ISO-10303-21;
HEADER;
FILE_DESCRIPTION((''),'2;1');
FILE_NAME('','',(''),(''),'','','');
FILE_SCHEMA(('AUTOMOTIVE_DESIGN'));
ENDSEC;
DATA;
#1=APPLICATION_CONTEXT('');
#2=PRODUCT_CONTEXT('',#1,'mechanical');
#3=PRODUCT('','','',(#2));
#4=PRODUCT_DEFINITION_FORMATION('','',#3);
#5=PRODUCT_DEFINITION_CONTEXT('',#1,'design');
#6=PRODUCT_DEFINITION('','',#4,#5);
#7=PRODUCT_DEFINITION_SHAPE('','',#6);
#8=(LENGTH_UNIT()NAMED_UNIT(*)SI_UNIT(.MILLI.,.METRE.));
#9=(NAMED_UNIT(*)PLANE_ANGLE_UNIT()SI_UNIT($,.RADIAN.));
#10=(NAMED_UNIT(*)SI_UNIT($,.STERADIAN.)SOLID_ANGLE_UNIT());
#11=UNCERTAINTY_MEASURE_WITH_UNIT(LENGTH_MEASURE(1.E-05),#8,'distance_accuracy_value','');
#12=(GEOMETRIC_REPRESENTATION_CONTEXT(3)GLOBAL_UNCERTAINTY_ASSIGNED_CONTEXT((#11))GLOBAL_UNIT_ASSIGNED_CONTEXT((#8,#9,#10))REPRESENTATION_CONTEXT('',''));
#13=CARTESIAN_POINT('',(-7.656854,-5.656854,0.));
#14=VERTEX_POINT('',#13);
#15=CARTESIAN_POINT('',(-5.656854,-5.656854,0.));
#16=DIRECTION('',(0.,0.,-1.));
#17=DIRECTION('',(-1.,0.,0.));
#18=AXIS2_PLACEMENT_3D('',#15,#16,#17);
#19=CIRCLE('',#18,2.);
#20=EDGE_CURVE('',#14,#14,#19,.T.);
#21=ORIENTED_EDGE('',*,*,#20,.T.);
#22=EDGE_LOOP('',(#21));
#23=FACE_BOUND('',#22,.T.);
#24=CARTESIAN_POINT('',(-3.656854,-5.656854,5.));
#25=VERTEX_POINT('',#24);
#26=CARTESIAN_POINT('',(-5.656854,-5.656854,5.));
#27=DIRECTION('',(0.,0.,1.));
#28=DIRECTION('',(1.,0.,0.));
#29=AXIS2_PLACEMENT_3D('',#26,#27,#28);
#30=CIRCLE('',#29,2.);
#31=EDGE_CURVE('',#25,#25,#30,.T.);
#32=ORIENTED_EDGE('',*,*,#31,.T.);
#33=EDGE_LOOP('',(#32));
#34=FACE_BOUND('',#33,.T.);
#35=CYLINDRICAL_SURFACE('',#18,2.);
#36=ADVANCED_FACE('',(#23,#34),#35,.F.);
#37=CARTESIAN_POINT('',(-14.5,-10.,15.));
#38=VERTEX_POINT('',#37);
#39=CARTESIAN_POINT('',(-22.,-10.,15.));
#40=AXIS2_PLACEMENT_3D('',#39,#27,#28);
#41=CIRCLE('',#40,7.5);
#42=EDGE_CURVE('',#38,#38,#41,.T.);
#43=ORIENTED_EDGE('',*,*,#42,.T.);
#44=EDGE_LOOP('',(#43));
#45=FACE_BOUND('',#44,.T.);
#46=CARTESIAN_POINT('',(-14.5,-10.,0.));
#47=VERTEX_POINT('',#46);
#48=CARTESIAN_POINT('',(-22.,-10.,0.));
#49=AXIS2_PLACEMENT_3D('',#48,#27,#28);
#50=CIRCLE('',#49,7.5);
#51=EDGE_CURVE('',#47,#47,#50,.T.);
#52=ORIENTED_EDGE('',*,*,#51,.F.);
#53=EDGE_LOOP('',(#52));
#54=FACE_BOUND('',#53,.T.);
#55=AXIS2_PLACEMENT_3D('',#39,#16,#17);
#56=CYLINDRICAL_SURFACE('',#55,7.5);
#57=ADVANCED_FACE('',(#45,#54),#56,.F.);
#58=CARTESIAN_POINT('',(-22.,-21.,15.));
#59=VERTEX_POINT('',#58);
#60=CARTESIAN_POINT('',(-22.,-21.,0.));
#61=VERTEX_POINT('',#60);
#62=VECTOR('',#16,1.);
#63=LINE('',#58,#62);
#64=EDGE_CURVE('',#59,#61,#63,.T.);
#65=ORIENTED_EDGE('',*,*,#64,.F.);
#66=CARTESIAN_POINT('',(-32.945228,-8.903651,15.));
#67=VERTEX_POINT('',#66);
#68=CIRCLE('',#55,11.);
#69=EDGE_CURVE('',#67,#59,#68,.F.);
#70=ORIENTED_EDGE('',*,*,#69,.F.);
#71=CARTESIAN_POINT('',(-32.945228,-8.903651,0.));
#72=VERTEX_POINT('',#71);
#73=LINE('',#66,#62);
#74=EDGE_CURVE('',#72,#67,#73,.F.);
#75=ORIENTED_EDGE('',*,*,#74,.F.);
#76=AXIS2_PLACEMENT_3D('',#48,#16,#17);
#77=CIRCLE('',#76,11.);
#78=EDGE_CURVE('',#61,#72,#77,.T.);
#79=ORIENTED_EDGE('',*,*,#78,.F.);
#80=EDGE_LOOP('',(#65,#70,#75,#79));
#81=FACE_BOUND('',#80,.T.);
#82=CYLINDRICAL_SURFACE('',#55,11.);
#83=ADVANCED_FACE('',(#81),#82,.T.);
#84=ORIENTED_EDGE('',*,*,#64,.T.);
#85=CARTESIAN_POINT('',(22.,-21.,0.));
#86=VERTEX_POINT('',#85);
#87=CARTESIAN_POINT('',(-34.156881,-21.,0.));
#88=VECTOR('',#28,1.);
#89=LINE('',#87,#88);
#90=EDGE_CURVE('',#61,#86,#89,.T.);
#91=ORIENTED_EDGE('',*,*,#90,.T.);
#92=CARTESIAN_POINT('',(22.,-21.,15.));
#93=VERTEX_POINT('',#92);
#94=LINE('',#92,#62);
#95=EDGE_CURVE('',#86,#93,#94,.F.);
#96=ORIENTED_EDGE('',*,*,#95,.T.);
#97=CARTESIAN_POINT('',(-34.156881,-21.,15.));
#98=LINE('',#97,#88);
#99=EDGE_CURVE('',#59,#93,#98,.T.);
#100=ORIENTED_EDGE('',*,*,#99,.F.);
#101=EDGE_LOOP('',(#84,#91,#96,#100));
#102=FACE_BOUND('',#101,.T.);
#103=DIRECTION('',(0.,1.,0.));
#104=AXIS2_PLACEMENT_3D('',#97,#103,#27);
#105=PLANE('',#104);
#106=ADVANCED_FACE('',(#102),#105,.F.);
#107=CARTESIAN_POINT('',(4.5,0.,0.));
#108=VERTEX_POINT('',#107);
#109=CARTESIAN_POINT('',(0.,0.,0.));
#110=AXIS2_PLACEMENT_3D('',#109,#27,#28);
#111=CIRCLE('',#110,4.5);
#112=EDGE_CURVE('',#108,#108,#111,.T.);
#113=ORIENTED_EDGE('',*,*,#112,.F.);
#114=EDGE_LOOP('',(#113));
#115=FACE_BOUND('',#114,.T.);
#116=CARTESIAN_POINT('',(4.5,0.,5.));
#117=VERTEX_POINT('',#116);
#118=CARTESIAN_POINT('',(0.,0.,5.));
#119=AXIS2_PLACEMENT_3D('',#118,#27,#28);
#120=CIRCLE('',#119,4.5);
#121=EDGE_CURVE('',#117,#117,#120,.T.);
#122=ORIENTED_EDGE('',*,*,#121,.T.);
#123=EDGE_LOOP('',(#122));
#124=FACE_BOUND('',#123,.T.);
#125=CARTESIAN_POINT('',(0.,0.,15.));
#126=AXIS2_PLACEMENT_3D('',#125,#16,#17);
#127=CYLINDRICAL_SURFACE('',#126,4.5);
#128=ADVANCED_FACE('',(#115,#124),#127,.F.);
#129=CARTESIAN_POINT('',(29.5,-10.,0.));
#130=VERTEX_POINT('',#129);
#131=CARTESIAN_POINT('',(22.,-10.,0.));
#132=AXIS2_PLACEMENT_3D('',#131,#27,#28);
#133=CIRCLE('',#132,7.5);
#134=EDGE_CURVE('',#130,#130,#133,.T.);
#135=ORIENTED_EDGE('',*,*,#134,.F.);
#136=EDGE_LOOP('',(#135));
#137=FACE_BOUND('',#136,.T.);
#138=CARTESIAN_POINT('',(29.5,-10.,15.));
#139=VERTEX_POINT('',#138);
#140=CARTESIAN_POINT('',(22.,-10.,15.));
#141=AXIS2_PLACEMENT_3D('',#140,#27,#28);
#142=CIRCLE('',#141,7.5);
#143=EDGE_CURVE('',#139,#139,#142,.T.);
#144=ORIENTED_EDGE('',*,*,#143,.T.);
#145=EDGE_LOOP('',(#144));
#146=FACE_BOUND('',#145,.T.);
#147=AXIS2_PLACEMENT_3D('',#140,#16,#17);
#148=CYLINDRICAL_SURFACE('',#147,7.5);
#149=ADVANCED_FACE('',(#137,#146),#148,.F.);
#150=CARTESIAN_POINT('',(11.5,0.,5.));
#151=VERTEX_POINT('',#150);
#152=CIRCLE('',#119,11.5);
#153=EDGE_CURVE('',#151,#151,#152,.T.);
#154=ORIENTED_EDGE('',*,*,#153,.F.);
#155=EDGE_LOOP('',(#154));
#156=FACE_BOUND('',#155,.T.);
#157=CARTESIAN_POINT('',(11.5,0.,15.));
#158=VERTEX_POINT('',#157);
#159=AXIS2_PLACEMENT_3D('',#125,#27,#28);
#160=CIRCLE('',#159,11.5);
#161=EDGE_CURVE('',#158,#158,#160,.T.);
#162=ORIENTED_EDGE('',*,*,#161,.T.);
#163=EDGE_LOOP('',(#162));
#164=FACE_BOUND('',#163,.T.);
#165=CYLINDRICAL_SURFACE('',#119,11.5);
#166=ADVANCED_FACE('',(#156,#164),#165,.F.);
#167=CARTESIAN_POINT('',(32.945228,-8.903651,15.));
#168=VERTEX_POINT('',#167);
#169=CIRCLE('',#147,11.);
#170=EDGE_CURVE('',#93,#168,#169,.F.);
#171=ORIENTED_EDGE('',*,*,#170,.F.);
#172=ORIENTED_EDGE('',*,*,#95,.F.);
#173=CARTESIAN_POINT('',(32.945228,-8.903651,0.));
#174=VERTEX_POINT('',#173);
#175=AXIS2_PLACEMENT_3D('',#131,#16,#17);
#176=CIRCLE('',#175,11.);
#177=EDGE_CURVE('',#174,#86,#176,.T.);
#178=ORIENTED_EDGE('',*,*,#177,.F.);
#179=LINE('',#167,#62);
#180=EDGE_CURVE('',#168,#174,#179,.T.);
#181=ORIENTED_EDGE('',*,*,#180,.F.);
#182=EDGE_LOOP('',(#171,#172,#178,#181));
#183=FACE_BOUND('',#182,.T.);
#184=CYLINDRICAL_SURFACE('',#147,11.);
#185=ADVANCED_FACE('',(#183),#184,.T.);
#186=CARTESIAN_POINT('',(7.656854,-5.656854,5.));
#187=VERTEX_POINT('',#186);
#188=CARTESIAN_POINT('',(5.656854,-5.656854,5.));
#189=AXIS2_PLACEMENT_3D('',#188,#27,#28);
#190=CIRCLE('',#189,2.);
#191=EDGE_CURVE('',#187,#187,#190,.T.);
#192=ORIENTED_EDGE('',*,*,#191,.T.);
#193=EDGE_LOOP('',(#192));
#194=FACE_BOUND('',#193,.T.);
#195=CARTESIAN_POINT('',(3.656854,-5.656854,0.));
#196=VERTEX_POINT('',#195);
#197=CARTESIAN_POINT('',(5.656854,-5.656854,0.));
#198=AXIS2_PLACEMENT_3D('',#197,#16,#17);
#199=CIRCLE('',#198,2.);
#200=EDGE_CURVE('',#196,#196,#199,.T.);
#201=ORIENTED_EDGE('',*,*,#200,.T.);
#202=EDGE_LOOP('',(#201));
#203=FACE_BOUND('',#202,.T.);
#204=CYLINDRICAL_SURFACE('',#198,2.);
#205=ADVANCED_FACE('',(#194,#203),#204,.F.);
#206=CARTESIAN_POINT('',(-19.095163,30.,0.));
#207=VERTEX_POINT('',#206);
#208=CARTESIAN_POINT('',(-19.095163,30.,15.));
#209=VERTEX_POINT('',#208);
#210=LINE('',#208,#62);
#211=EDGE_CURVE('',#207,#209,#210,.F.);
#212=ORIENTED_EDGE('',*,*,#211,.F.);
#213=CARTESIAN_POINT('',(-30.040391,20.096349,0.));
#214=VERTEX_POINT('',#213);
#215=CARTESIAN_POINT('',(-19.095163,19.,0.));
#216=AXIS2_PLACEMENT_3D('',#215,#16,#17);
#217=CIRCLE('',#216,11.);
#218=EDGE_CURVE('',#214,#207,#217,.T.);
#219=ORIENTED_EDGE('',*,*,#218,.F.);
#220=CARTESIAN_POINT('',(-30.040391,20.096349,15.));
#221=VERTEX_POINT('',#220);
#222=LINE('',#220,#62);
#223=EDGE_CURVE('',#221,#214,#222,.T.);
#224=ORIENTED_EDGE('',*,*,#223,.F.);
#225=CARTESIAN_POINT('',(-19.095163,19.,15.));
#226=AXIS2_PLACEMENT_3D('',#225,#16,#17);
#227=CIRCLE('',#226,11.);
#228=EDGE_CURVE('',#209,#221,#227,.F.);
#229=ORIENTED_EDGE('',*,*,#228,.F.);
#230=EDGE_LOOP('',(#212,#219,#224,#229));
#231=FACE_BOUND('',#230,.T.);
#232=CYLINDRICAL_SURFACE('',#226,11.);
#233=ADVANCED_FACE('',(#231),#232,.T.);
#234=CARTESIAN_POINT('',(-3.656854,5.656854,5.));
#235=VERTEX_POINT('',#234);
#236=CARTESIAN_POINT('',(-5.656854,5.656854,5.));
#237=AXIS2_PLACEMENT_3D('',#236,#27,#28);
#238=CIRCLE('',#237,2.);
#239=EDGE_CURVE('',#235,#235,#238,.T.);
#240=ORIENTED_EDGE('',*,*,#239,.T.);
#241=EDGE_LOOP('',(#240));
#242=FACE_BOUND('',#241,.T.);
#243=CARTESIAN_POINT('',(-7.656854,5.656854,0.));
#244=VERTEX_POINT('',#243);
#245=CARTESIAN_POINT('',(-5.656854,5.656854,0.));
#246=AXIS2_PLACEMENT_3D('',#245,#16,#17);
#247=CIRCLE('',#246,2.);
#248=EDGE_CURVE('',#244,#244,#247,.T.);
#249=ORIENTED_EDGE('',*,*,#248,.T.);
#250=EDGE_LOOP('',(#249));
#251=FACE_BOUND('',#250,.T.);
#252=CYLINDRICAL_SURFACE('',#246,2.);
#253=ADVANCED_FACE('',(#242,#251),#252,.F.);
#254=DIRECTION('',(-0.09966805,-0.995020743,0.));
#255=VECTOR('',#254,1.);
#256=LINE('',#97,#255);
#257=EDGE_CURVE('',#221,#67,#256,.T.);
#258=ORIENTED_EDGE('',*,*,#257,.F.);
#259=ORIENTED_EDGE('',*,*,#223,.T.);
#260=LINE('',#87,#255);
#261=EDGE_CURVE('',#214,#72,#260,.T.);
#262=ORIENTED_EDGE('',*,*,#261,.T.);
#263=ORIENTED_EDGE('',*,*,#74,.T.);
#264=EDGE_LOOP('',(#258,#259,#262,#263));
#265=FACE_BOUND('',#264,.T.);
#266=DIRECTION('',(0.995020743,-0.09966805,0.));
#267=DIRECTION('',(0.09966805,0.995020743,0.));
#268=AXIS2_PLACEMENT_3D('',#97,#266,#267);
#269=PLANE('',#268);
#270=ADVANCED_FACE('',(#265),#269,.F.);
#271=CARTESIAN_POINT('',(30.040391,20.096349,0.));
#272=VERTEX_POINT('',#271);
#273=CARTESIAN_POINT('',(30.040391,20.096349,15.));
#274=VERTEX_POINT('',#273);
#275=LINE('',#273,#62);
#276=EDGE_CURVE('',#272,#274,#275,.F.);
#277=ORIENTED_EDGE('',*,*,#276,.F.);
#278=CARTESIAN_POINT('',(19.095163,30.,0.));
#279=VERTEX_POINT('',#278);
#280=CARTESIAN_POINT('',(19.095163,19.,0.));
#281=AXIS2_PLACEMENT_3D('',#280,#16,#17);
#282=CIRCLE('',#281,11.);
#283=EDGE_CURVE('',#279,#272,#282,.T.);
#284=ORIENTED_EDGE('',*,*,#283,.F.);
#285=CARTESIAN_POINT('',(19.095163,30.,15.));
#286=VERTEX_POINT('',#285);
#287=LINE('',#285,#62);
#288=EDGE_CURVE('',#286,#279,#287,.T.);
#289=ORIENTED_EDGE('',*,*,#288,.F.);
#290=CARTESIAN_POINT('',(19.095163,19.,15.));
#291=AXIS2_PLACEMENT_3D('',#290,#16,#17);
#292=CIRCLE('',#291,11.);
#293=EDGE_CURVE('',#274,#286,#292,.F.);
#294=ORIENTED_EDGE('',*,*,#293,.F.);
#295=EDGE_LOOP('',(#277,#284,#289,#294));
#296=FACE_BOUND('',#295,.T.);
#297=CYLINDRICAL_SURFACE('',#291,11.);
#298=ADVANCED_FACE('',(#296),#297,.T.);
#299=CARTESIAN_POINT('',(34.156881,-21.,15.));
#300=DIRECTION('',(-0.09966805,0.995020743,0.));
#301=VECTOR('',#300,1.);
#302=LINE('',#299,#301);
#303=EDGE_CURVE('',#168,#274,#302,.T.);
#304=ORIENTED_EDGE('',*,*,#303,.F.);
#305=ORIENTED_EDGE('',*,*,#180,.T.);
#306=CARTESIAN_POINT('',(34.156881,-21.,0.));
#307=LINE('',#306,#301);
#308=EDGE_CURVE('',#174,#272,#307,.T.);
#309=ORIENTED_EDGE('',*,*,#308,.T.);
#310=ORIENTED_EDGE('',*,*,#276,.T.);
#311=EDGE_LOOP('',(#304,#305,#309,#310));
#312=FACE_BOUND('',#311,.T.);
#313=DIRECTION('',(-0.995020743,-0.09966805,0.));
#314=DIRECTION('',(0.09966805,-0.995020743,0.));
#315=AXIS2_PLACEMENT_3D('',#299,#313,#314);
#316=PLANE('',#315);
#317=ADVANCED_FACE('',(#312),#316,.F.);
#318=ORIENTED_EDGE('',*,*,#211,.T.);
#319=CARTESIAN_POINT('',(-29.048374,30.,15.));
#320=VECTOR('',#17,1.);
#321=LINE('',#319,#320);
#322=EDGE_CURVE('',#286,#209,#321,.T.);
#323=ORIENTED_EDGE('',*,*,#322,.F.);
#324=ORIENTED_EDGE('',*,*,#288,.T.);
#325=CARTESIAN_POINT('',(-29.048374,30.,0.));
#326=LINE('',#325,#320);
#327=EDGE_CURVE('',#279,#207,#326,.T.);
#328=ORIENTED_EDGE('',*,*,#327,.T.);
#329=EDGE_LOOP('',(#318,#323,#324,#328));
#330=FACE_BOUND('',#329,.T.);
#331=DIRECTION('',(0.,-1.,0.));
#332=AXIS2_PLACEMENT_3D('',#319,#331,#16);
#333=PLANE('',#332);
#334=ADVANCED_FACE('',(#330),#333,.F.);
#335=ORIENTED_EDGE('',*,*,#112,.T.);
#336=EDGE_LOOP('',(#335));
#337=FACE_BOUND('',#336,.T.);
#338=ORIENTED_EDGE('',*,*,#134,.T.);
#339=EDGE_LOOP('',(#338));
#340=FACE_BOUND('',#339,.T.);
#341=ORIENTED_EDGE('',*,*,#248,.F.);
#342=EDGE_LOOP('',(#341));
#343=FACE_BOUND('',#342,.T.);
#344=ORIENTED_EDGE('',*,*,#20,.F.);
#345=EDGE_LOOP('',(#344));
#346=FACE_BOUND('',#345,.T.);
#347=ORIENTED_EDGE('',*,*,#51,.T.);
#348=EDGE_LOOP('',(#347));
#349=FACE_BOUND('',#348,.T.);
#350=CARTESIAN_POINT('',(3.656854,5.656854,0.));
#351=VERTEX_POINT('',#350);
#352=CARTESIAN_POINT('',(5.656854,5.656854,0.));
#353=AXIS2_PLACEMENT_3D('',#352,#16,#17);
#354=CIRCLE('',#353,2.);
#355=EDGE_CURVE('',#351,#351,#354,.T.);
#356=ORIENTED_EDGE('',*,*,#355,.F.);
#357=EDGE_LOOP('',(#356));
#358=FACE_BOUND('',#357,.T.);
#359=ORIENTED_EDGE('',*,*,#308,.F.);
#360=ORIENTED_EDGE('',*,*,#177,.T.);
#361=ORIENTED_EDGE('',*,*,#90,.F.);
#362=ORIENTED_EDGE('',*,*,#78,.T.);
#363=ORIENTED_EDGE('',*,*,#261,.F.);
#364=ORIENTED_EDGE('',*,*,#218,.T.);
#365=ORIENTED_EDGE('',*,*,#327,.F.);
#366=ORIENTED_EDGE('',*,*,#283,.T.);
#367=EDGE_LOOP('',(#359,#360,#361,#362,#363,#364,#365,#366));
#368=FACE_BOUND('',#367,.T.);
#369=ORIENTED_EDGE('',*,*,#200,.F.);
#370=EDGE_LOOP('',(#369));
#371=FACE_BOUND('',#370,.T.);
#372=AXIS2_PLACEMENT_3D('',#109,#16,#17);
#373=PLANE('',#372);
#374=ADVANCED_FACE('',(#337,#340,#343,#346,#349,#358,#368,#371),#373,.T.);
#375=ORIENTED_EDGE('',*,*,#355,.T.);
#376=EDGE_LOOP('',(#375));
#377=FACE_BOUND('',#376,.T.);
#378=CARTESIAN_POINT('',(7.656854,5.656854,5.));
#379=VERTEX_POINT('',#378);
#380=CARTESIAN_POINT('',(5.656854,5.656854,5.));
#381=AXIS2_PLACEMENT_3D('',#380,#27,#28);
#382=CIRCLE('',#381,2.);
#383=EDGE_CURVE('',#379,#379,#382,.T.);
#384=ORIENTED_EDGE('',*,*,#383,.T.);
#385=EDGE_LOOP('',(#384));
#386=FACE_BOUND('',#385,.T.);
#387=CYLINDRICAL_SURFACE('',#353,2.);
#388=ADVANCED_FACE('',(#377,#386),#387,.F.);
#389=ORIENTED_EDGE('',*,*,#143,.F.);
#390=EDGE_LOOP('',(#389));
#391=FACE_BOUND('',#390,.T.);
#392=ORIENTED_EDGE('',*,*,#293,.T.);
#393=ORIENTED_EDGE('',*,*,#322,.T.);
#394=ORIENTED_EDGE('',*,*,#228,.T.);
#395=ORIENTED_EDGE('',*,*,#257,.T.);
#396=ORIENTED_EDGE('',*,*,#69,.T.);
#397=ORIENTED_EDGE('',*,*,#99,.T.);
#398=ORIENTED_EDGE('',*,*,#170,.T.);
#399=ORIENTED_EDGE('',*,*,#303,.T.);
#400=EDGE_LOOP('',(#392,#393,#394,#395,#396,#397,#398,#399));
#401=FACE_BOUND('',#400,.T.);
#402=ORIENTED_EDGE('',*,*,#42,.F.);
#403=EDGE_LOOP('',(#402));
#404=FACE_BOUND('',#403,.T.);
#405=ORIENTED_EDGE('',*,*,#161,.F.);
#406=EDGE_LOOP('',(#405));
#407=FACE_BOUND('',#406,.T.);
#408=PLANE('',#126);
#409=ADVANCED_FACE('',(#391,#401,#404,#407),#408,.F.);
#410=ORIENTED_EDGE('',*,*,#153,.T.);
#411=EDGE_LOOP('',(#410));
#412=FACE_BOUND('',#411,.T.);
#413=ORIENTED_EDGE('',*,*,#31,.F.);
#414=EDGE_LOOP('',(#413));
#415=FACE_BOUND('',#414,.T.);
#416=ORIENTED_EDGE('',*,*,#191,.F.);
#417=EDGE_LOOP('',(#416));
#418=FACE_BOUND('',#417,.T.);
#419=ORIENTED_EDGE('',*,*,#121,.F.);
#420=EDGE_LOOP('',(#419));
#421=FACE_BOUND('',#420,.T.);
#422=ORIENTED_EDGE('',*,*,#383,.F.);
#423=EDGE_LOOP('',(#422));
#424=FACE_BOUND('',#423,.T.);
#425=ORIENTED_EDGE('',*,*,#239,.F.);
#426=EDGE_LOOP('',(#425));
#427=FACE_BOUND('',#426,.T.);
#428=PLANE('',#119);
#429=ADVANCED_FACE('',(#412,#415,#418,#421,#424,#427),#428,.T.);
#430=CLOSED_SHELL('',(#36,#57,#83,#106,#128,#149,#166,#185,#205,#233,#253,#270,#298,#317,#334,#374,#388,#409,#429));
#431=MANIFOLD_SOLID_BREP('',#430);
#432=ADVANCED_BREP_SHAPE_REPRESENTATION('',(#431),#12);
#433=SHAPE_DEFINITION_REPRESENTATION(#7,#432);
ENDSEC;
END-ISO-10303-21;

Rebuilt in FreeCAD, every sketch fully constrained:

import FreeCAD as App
import Part
import Sketcher
from FreeCAD import Vector
Q = App.Units.Quantity


def edges_at(feature, points):
    """Names of the edges that pass closest to the given points."""
    edges = feature.Shape.Edges
    near = lambda p: min(range(len(edges)), key=lambda i: edges[i].distToShape(Part.Vertex(*p))[0])
    return sorted({f"Edge{near(p) + 1}" for p in points})

doc = App.newDocument("Part")
body = doc.addObject("PartDesign::Body", "Body")

sketch1 = doc.addObject("Sketcher::SketchObject", "Sketch")
body.addObject(sketch1)
sketch1.AttachmentSupport = (doc.XY_Plane, [""])
sketch1.MapMode = "FlatFace"
sketch1.addGeometry(Part.LineSegment(Vector(-34.2, -21, 0), Vector(34.2, -21, 0)), False)
sketch1.addGeometry(Part.LineSegment(Vector(34.2, -21, 0), Vector(29, 30, 0)), False)
sketch1.addGeometry(Part.LineSegment(Vector(29, 30, 0), Vector(-29, 30, 0)), False)
sketch1.addGeometry(Part.LineSegment(Vector(-29, 30, 0), Vector(-34.2, -21, 0)), False)
sketch1.addGeometry(Part.Circle(Vector(-22, -10, 0), Vector(0, 0, 1), 7.5), False)
sketch1.addGeometry(Part.Circle(Vector(22, -10, 0), Vector(0, 0, 1), 7.5), False)
sketch1.addGeometry(Part.Circle(Vector(0, 0, 0), Vector(0, 0, 1), 4.5), False)
sketch1.addConstraint(Sketcher.Constraint("Coincident", 0, 2, 1, 1))
sketch1.addConstraint(Sketcher.Constraint("Coincident", 1, 2, 2, 1))
sketch1.addConstraint(Sketcher.Constraint("Coincident", 2, 2, 3, 1))
sketch1.addConstraint(Sketcher.Constraint("Coincident", 3, 2, 0, 1))
sketch1.addConstraint(Sketcher.Constraint("Horizontal", 0))
sketch1.addConstraint(Sketcher.Constraint("Horizontal", 2))
sketch1.addConstraint(Sketcher.Constraint("Coincident", 6, 3, -1, 1))
sketch1.addConstraint(Sketcher.Constraint("Equal", 4, 5))
sketch1.addConstraint(Sketcher.Constraint("Symmetric", 4, 3, 5, 3, -2))
sketch1.addConstraint(Sketcher.Constraint("Equal", 1, 3))
sketch1.addConstraint(Sketcher.Constraint("Diameter", 4, Q("15 mm")))
sketch1.addConstraint(Sketcher.Constraint("Diameter", 6, Q("9 mm")))
sketch1.addConstraint(Sketcher.Constraint("DistanceX", 4, 3, -1, 1, Q("22 mm")))
sketch1.addConstraint(Sketcher.Constraint("DistanceY", 4, 3, -1, 1, Q("10 mm")))
sketch1.addConstraint(Sketcher.Constraint("DistanceY", 0, 2, -1, 1, Q("21 mm")))
sketch1.addConstraint(Sketcher.Constraint("DistanceY", -1, 1, 1, 2, Q("30 mm")))
sketch1.addConstraint(Sketcher.Constraint("DistanceX", 0, 1, 0, 2, Q("68.313762 mm")))
sketch1.addConstraint(Sketcher.Constraint("DistanceX", 2, 2, 2, 1, Q("58.096747 mm")))
sketch1.addConstraint(Sketcher.Constraint("DistanceX", -1, 1, 0, 2, Q("34.156881 mm")))
pad1 = doc.addObject("PartDesign::Pad", "Pad")
body.addObject(pad1)
pad1.Profile = sketch1
pad1.Length = 15
doc.recompute()

fillet = doc.addObject("PartDesign::Fillet", "Fillet")
body.addObject(fillet)
fillet.Base = (pad1, edges_at(pad1, [
    (34.157, -21, 7.5),
    (-34.157, -21, 7.5),
    (-29.048, 30, 7.5),
    (29.048, 30, 7.5),
]))
fillet.Radius = 11

sketch2 = doc.addObject("Sketcher::SketchObject", "Sketch001")
body.addObject(sketch2)
sketch2.AttachmentSupport = (doc.XY_Plane, [""])
sketch2.MapMode = "FlatFace"
sketch2.AttachmentOffset = App.Placement(Vector(0, 0, 15), App.Rotation())
sketch2.addGeometry(Part.Circle(Vector(0, 0, 0), Vector(0, 0, 1), 12), False)
sketch2.addConstraint(Sketcher.Constraint("Coincident", 0, 3, -1, 1))
sketch2.addConstraint(Sketcher.Constraint("Diameter", 0, Q("23 mm")))
pocket1 = doc.addObject("PartDesign::Pocket", "Pocket")
body.addObject(pocket1)
pocket1.Profile = sketch2
pocket1.Length = 10

sketch3 = doc.addObject("Sketcher::SketchObject", "Sketch002")
body.addObject(sketch3)
sketch3.AttachmentSupport = (doc.XY_Plane, [""])
sketch3.MapMode = "FlatFace"
sketch3.addGeometry(Part.Circle(Vector(5.7, 5.7, 0), Vector(0, 0, 1), 2), False)
sketch3.addConstraint(Sketcher.Constraint("Diameter", 0, Q("4 mm")))
sketch3.addConstraint(Sketcher.Constraint("DistanceX", -1, 1, 0, 3, Q("5.656854 mm")))
sketch3.addConstraint(Sketcher.Constraint("DistanceY", -1, 1, 0, 3, Q("5.656854 mm")))
doc.recompute()
hole = doc.addObject("PartDesign::Hole", "Hole")
body.addObject(hole)
hole.Profile = sketch3
hole.ThreadType = "None"
hole.Diameter = 4
hole.DepthType = "ThroughAll"
hole.Reversed = True
doc.recompute()

polarpattern = doc.addObject("PartDesign::PolarPattern", "PolarPattern")
body.addObject(polarpattern)
polarpattern.Originals = [hole]
polarpattern.Axis = (doc.Z_Axis, [""])
polarpattern.Angle = 360
polarpattern.Occurrences = 4
body.Tip = polarpattern

doc.recompute()
